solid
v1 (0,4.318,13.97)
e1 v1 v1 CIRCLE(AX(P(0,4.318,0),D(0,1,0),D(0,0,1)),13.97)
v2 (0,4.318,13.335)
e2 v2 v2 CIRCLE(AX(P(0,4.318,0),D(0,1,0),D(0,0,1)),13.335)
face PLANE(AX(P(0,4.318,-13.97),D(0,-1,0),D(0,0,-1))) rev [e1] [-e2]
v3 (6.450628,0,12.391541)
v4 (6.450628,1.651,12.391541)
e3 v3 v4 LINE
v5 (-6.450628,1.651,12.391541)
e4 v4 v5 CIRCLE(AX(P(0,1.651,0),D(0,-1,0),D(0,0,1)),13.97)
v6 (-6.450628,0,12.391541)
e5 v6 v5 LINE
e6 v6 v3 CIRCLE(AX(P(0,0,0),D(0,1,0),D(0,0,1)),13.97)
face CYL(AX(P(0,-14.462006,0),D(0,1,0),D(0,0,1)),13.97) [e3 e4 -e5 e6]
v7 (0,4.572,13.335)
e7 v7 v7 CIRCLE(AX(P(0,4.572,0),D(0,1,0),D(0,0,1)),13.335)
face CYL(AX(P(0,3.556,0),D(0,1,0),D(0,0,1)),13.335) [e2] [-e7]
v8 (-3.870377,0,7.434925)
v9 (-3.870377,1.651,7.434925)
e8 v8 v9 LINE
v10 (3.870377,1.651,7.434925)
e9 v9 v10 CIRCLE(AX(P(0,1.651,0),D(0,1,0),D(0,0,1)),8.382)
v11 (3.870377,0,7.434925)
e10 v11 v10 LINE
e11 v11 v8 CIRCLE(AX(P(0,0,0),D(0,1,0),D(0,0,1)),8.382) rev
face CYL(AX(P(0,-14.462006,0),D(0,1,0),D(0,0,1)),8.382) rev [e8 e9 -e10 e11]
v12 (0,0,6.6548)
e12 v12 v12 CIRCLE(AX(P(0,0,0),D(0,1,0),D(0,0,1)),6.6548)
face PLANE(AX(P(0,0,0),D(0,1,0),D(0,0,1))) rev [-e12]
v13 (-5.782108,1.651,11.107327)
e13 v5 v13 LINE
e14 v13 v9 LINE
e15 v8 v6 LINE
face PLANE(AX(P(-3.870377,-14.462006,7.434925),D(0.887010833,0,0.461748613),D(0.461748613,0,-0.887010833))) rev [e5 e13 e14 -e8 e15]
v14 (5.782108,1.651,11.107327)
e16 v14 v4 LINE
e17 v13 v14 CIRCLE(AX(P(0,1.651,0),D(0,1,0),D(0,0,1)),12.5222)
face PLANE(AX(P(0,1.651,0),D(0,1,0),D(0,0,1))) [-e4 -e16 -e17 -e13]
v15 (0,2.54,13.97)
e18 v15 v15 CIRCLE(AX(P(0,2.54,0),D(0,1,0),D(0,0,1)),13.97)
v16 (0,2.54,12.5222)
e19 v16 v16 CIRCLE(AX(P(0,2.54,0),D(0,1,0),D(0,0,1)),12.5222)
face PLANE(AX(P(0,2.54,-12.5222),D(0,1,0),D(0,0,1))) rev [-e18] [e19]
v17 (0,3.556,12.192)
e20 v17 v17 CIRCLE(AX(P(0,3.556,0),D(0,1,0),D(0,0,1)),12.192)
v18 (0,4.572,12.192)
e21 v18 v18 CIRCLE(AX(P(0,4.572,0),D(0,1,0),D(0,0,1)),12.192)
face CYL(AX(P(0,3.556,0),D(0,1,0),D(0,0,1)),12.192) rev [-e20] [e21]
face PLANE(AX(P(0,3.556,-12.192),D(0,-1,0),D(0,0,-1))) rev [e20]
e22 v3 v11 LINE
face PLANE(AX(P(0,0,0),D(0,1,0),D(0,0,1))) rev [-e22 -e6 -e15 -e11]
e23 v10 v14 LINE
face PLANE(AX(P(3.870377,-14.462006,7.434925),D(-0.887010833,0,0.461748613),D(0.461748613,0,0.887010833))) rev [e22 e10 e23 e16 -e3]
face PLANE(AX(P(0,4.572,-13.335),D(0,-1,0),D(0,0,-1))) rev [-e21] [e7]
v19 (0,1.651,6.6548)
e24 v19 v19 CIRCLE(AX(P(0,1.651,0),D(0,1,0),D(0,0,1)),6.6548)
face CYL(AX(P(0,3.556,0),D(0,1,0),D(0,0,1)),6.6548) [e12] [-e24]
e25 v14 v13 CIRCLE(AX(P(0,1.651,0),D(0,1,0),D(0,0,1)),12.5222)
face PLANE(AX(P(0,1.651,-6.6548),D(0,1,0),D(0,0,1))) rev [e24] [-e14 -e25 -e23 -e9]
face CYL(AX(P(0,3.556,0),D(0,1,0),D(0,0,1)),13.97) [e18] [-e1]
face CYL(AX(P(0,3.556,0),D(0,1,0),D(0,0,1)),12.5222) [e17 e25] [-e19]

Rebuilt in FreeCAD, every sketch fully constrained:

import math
import FreeCAD as App
import Part
import Sketcher
Q = App.Units.Quantity


def add_polygon(sketch, points):
    """Adds a closed chain of lines whose ends are joined by coincident constraints."""
    first, n = sketch.GeometryCount, len(points)
    for a, b in zip(points, points[1:] + points[:1]):
        sketch.addGeometry(Part.LineSegment(App.Vector(*a, 0), App.Vector(*b, 0)), False)
    for i in range(n):
        sketch.addConstraint(Sketcher.Constraint("Coincident", first + i, 2, first + (i + 1) % n, 1))

doc = App.newDocument("Part")
params = doc.addObject("Spreadsheet::Sheet", "Params")
for row, (alias, value) in enumerate([
    ("sketch1_width", "0.07 in"),
    ("sketch1_width2", "0.01 in"),
    ("sketch1_width3", "0.04 in"),
    ("sketch1_width4", "0.14 in"),
    ("sketch1_height", "0.48 in"),
    ("revolution_angle", "360 deg"),
    ("sketch2_radius", "0.33 in"),
    ("sketch2_radius2", "0.55 in"),
    ("pad1_length", "0.065 in"),
], start=1):
    params.set(f"A{row}", alias)
    params.set(f"B{row}", "=" + value)
    params.setAlias(f"B{row}", alias)

body = doc.addObject("PartDesign::Body", "Body")

sketch1 = doc.addObject("Sketcher::SketchObject", "Sketch")
body.addObject(sketch1)
sketch1.AttachmentSupport = (doc.YZ_Plane, [""])
sketch1.MapMode = "FlatFace"
add_polygon(sketch1, [(0, 0), (0, -6.65), (1.65, -6.65), (1.65, -12.52), (2.54, -12.52), (2.54, -13.97), (4.32, -13.97), (4.32, -13.34), (4.57, -13.34), (4.57, -12.19), (3.56, -12.19), (3.56, 0)])
sketch1.addConstraint(Sketcher.Constraint("Vertical", 0))
sketch1.addConstraint(Sketcher.Constraint("Horizontal", 1))
sketch1.addConstraint(Sketcher.Constraint("Vertical", 2))
sketch1.addConstraint(Sketcher.Constraint("Horizontal", 3))
sketch1.addConstraint(Sketcher.Constraint("Vertical", 4))
sketch1.addConstraint(Sketcher.Constraint("Horizontal", 5))
sketch1.addConstraint(Sketcher.Constraint("Vertical", 6))
sketch1.addConstraint(Sketcher.Constraint("Horizontal", 7))
sketch1.addConstraint(Sketcher.Constraint("Vertical", 8))
sketch1.addConstraint(Sketcher.Constraint("Horizontal", 9))
sketch1.addConstraint(Sketcher.Constraint("Vertical", 10))
sketch1.addConstraint(Sketcher.Constraint("Horizontal", 11))
sketch1.addConstraint(Sketcher.Constraint("Coincident", 11, 2, -1, 1))
sketch1.addConstraint(Sketcher.Constraint("DistanceX", 5, 1, 5, 2, Q("0.07 in")))
sketch1.addConstraint(Sketcher.Constraint("DistanceX", 7, 1, 7, 2, Q("0.01 in")))
sketch1.addConstraint(Sketcher.Constraint("DistanceX", 9, 2, 9, 1, Q("0.04 in")))
sketch1.addConstraint(Sketcher.Constraint("DistanceX", 11, 2, 11, 1, Q("0.14 in")))
sketch1.addConstraint(Sketcher.Constraint("DistanceY", 10, 1, 10, 2, Q("0.48 in")))
sketch1.addConstraint(Sketcher.Constraint("DistanceX", 1, 1, 1, 2, Q("0.065 in")))
sketch1.addConstraint(Sketcher.Constraint("DistanceY", 0, 2, 0, 1, Q("0.262 in")))
sketch1.addConstraint(Sketcher.Constraint("DistanceY", 2, 2, 2, 1, Q("0.231 in")))
sketch1.addConstraint(Sketcher.Constraint("DistanceY", 4, 2, 4, 1, Q("0.057 in")))
sketch1.addConstraint(Sketcher.Constraint("DistanceY", 6, 1, 6, 2, Q("0.025 in")))
sketch1.setExpression("Constraints[25]", "Params.sketch1_width")
sketch1.setExpression("Constraints[26]", "Params.sketch1_width2")
sketch1.setExpression("Constraints[27]", "Params.sketch1_width3")
sketch1.setExpression("Constraints[28]", "Params.sketch1_width4")
sketch1.setExpression("Constraints[29]", "Params.sketch1_height")
revolution = doc.addObject("PartDesign::Revolution", "Revolution")
body.addObject(revolution)
revolution.Profile = sketch1
revolution.ReferenceAxis = (sketch1, ["H_Axis"])
revolution.setExpression("Angle", "Params.revolution_angle")

sketch2 = doc.addObject("Sketcher::SketchObject", "Sketch001")
body.addObject(sketch2)
sketch2.AttachmentSupport = (doc.XZ_Plane, [""])
sketch2.MapMode = "FlatFace"
sketch2.AttachmentOffset = App.Placement(App.Vector(0, 0, -0.065 * 25.4), App.Rotation())
sketch2.addGeometry(Part.LineSegment(App.Vector(-6, 12, 0), App.Vector(-4, 7, 0)), False)
sketch2.addGeometry(Part.ArcOfCircle(Part.Circle(App.Vector(0, 0, 0), App.Vector(0, 0, 1), 8), math.radians(63), math.radians(117)), False)
sketch2.addGeometry(Part.LineSegment(App.Vector(4, 7, 0), App.Vector(6, 12, 0)), False)
sketch2.addGeometry(Part.ArcOfCircle(Part.Circle(App.Vector(0, 0, 0), App.Vector(0, 0, 1), 14), math.radians(62), math.radians(118)), False)
sketch2.addConstraint(Sketcher.Constraint("Coincident", 0, 2, 1, 2))
sketch2.addConstraint(Sketcher.Constraint("Coincident", 1, 1, 2, 1))
sketch2.addConstraint(Sketcher.Constraint("Coincident", 2, 2, 3, 1))
sketch2.addConstraint(Sketcher.Constraint("Coincident", 3, 2, 0, 1))
sketch2.addConstraint(Sketcher.Constraint("Coincident", 1, 3, -1, 1))
sketch2.addConstraint(Sketcher.Constraint("Coincident", 3, 3, -1, 1))
sketch2.addConstraint(Sketcher.Constraint("Horizontal", 0, 2, 1, 1))
sketch2.addConstraint(Sketcher.Constraint("Horizontal", 2, 2, 3, 2))
sketch2.addConstraint(Sketcher.Constraint("Radius", 1, Q("0.33 in")))
sketch2.addConstraint(Sketcher.Constraint("Radius", 3, Q("0.55 in")))
sketch2.addConstraint(Sketcher.Constraint("Angle", 0, Q("-62.5 deg")))
sketch2.addConstraint(Sketcher.Constraint("DistanceX", -1, 1, 2, 2, Q("6.450628 mm")))
sketch2.setExpression("Constraints[8]", "Params.sketch2_radius")
sketch2.setExpression("Constraints[9]", "Params.sketch2_radius2")
pad1 = doc.addObject("PartDesign::Pad", "Pad")
body.addObject(pad1)
pad1.Profile = sketch2
pad1.setExpression("Length", "Params.pad1_length")

doc.recompute()
